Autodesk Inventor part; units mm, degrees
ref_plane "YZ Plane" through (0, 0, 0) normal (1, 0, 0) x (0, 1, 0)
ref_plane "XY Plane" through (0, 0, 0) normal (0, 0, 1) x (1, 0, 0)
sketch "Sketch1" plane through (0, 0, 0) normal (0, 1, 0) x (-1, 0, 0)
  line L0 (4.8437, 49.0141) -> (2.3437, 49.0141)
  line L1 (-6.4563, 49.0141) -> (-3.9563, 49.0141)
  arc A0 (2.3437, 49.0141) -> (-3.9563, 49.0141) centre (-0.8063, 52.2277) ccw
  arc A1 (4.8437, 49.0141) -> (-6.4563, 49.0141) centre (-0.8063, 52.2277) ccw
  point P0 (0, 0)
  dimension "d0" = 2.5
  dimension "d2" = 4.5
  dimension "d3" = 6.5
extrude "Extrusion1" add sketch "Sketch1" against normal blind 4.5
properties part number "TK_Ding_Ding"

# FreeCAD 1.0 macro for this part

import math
import FreeCAD as App
import Part
import Sketcher

V = App.Vector

doc = App.newDocument("Part")
body = doc.addObject("PartDesign::Body", "Body")

# Sketch on XZ plane
sketch1 = body.newObject("Sketcher::SketchObject", "Sketch")
sketch1.AttachmentSupport = (doc.getObject("XZ_Plane"), [""])
sketch1.MapMode = "FlatFace"
sketch1.addGeometry(Part.LineSegment(V(-2.3, 49, 0), V(-4.8, 49, 0)), False)
sketch1.addGeometry(Part.ArcOfCircle(Part.Circle(V(0.8, 52.2, 0), V(0, 0, 1), 6.5), math.radians(-30), math.radians(210)), False)
sketch1.addGeometry(Part.LineSegment(V(6.5, 49, 0), V(4, 49, 0)), False)
sketch1.addGeometry(Part.ArcOfCircle(Part.Circle(V(0.8, 52.2, 0), V(0, 0, 1), 4.5), math.radians(-46), math.radians(226)), False)
sketch1.addConstraint(Sketcher.Constraint("Coincident", 0, 2, 1, 2))
sketch1.addConstraint(Sketcher.Constraint("Coincident", 1, 1, 2, 1))
sketch1.addConstraint(Sketcher.Constraint("Coincident", 2, 2, 3, 1))
sketch1.addConstraint(Sketcher.Constraint("Coincident", 3, 2, 0, 1))
sketch1.addConstraint(Sketcher.Constraint("Horizontal", 0))
sketch1.addConstraint(Sketcher.Constraint("Horizontal", 2))
sketch1.addConstraint(Sketcher.Constraint("Coincident", 3, 3, 1, 3))
sketch1.addConstraint(Sketcher.Constraint("Horizontal", 0, 2, 1, 1))
sketch1.addConstraint(Sketcher.Constraint("Radius", 1, 6.5))
sketch1.addConstraint(Sketcher.Constraint("Radius", 3, 4.5))
sketch1.addConstraint(Sketcher.Constraint("DistanceX", 0, 2, 0, 1, 2.5))
sketch1.addConstraint(Sketcher.Constraint("DistanceY", -1, 1, 0, 2, 49.014))
sketch1.addConstraint(Sketcher.Constraint("DistanceX", -1, 1, 1, 3, 0.8063))
pad1 = body.newObject("PartDesign::Pad", "Pad")
pad1.Profile = sketch1
pad1.Length = 4.5

doc.recompute()
